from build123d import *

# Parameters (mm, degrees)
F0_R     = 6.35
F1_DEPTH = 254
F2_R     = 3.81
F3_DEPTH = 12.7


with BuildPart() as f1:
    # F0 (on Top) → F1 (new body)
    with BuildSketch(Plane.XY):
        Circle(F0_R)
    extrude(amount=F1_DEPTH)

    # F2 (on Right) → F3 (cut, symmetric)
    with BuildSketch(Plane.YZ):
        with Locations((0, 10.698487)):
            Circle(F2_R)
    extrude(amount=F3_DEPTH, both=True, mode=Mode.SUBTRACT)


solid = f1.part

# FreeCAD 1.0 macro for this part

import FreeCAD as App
import Part
import Sketcher
Q = App.Units.Quantity

doc = App.newDocument("Part")
body = doc.addObject("PartDesign::Body", "Body")

# Sketch on XY plane
sketch1 = doc.addObject("Sketcher::SketchObject", "Sketch")
body.addObject(sketch1)
sketch1.AttachmentSupport = (doc.XY_Plane, [""])
sketch1.MapMode = "FlatFace"
sketch1.addGeometry(Part.Circle(App.Vector(0, 0, 0), App.Vector(0, 0, 1), 6.35), False)
sketch1.addConstraint([
    Sketcher.Constraint("Coincident", 0, 3, -1, 1),
    Sketcher.Constraint("Diameter", 0, Q("0.5 in")),
])
pad1 = doc.addObject("PartDesign::Pad", "Pad")
body.addObject(pad1)
pad1.Profile = sketch1
pad1.Length = Q("10 in")

# Sketch on YZ plane
sketch2 = doc.addObject("Sketcher::SketchObject", "Sketch001")
body.addObject(sketch2)
sketch2.AttachmentSupport = (doc.YZ_Plane, [""])
sketch2.MapMode = "FlatFace"
sketch2.addGeometry(Part.Circle(App.Vector(0, 10.698487, 0), App.Vector(0, 0, 1), 3.81), False)
sketch2.addConstraint([
    Sketcher.Constraint("PointOnObject", 0, 3, -2),
    Sketcher.Constraint("Diameter", 0, Q("0.3 in")),
    Sketcher.Constraint("DistanceY", -1, 1, 0, 3, 10.698487),
])
pocket1 = doc.addObject("PartDesign::Pocket", "Pocket")
body.addObject(pocket1)
pocket1.Profile = sketch2
pocket1.Length = Q("1 in")
pocket1.Midplane = True

doc.recompute()
